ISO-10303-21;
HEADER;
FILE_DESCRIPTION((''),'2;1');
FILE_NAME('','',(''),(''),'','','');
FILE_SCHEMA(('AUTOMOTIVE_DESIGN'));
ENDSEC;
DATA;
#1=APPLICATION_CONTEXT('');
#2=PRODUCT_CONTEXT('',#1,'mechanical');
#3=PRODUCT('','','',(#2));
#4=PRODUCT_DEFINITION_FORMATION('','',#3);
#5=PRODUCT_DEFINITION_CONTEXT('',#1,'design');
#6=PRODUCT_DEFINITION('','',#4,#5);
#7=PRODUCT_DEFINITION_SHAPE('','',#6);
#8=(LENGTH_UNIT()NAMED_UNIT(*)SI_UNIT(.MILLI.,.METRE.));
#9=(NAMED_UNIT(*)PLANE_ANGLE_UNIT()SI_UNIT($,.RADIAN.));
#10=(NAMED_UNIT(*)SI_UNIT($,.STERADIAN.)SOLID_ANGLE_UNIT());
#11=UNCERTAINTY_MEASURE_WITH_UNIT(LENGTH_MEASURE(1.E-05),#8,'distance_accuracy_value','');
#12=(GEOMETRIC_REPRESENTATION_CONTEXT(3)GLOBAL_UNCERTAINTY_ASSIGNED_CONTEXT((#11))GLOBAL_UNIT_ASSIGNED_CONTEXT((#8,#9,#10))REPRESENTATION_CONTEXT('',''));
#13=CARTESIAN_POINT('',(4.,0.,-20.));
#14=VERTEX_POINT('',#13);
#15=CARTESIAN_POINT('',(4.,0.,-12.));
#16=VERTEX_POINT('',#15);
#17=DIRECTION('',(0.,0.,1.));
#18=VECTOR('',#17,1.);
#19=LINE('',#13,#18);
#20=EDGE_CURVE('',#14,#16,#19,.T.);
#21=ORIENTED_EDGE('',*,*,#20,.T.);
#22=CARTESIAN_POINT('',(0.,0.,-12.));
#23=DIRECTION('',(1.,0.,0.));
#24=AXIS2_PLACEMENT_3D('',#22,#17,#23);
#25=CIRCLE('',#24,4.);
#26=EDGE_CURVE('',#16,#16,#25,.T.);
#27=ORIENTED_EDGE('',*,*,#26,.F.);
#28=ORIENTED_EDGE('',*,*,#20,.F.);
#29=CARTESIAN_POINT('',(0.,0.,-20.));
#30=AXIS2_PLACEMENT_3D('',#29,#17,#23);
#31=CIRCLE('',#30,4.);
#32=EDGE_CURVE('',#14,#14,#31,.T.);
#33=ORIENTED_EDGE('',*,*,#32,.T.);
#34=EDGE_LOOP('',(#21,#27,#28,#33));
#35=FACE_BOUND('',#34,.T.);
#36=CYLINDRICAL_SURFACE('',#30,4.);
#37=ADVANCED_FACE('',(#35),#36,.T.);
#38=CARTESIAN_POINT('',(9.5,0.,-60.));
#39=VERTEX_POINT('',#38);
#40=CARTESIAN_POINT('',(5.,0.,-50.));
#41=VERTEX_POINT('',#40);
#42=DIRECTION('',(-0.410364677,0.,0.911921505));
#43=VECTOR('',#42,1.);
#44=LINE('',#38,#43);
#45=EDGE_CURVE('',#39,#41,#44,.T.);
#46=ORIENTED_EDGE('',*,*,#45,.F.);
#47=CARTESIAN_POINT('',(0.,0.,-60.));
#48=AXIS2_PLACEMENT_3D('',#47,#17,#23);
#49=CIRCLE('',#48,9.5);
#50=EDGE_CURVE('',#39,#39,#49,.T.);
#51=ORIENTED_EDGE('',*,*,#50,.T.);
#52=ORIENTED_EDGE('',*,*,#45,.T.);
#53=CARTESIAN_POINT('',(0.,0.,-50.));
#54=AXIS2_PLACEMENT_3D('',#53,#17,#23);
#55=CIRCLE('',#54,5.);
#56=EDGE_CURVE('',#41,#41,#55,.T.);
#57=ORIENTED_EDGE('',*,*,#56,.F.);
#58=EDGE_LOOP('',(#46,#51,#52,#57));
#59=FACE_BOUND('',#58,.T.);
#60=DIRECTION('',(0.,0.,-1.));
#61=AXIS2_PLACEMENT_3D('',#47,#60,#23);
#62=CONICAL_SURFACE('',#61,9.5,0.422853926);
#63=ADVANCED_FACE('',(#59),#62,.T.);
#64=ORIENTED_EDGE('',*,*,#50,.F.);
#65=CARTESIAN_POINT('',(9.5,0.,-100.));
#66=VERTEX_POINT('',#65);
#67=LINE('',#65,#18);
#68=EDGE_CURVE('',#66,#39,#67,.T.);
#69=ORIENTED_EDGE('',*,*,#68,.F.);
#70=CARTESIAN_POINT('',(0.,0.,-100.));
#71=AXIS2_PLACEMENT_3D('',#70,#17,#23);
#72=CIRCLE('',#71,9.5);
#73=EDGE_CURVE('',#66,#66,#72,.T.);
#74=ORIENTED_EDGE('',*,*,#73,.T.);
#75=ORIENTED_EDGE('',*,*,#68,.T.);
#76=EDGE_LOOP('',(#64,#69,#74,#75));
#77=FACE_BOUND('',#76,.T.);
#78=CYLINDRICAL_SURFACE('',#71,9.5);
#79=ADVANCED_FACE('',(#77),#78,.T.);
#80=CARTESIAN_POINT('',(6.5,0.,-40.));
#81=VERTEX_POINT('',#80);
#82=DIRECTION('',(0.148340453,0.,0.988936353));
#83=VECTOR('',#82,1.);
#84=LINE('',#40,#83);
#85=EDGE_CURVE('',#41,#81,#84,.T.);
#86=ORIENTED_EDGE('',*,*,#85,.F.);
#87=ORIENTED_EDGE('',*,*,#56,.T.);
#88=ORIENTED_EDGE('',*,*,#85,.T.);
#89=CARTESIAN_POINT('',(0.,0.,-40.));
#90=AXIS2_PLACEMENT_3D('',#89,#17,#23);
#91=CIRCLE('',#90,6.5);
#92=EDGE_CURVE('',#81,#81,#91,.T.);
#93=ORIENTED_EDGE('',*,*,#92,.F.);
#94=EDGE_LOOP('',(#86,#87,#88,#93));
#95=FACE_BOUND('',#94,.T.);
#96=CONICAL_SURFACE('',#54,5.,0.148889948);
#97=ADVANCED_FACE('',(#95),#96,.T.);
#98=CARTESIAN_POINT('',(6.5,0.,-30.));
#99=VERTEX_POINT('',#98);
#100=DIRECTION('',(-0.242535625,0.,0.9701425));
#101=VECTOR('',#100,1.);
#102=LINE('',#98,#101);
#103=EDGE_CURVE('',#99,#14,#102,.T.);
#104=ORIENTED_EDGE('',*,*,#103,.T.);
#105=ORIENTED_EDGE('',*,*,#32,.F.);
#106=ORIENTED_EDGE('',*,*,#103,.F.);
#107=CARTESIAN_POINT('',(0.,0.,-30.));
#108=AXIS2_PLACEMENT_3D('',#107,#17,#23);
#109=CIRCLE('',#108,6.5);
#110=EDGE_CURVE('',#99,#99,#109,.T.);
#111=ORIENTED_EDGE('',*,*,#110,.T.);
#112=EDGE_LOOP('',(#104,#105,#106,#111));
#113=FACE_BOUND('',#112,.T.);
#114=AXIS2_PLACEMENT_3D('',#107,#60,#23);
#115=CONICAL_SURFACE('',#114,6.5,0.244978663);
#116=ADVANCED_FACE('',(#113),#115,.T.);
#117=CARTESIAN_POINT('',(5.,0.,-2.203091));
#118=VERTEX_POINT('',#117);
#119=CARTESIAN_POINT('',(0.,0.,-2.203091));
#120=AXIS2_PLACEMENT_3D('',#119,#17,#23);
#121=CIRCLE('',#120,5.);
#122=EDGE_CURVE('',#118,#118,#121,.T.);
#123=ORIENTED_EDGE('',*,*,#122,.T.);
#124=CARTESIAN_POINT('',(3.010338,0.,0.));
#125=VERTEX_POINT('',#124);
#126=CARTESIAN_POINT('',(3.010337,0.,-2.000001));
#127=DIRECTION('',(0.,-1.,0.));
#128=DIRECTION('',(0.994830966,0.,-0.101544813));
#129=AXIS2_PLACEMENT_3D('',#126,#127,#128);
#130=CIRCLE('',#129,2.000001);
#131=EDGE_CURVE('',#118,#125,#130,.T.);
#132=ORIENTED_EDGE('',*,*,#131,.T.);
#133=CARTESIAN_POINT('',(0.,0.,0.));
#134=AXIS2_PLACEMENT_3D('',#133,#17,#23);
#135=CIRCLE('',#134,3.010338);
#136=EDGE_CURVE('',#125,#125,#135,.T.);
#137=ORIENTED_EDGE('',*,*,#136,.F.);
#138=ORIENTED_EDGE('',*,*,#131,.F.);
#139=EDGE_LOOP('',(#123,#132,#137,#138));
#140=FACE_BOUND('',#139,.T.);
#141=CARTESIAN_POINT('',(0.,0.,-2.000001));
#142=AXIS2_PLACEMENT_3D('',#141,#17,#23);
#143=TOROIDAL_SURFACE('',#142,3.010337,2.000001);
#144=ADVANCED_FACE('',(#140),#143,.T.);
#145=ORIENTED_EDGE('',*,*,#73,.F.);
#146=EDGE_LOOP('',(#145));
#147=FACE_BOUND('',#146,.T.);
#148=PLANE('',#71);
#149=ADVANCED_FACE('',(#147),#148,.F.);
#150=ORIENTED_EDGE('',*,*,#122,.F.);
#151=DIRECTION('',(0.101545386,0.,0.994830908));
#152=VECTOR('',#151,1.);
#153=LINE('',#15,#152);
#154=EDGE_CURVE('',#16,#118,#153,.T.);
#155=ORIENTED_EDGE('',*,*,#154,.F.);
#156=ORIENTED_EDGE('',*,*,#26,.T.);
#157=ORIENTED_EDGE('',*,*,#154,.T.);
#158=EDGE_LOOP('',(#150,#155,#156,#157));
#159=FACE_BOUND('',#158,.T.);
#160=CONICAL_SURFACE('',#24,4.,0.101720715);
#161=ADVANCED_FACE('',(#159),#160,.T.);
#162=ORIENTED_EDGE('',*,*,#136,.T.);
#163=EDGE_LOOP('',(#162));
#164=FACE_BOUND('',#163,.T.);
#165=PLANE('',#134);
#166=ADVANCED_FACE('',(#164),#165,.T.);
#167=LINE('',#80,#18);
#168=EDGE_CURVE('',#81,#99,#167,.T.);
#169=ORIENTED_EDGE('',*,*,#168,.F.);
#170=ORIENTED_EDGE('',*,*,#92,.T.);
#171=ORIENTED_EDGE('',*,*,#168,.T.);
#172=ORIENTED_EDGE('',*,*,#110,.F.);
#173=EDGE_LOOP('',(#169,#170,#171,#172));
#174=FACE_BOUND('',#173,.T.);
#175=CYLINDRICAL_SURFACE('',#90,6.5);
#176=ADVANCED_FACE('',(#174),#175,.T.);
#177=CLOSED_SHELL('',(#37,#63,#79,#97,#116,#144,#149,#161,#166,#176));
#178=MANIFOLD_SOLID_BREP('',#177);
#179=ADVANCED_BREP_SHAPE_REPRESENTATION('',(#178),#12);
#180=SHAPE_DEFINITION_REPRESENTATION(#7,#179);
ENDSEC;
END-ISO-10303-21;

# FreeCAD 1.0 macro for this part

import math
import FreeCAD as App
import Part
import Sketcher

V = App.Vector

doc = App.newDocument("Part")
body = doc.addObject("PartDesign::Body", "Body")

# Sketch on XZ plane
sketch1 = body.newObject("Sketcher::SketchObject", "Sketch")
sketch1.AttachmentSupport = (doc.getObject("XZ_Plane"), [""])
sketch1.MapMode = "FlatFace"
sketch1.addGeometry([
    Part.LineSegment(V(4, -20, 0), V(4, -12, 0)),  # 0
    Part.LineSegment(V(4, -12, 0), V(5, -2.2, 0)),  # 1
    Part.ArcOfCircle(Part.Circle(V(3, -2, 0), V(0, 0, 1), 2), math.radians(-6), math.radians(90)),  # 2
    Part.LineSegment(V(3, 0, 0), V(0, 0, 0)),  # 3
    Part.LineSegment(V(0, 0, 0), V(0, -100, 0)),  # 4
    Part.LineSegment(V(0, -100, 0), V(9.5, -100, 0)),  # 5
    Part.LineSegment(V(9.5, -100, 0), V(9.5, -60, 0)),  # 6
    Part.LineSegment(V(9.5, -60, 0), V(5, -50, 0)),  # 7
    Part.LineSegment(V(5, -50, 0), V(6.5, -40, 0)),  # 8
    Part.LineSegment(V(6.5, -40, 0), V(6.5, -30, 0)),  # 9
    Part.LineSegment(V(6.5, -30, 0), V(4, -20, 0)),  # 10
], False)
sketch1.addConstraint([
    Sketcher.Constraint("Coincident", 0, 2, 1, 1),
    Sketcher.Constraint("Tangent", 1, 2, 2, 1),
    Sketcher.Constraint("Tangent", 2, 2, 3, 1),
    Sketcher.Constraint("Coincident", 3, 2, 4, 1),
    Sketcher.Constraint("Coincident", 4, 2, 5, 1),
    Sketcher.Constraint("Coincident", 5, 2, 6, 1),
    Sketcher.Constraint("Coincident", 6, 2, 7, 1),
    Sketcher.Constraint("Coincident", 7, 2, 8, 1),
    Sketcher.Constraint("Coincident", 8, 2, 9, 1),
    Sketcher.Constraint("Coincident", 9, 2, 10, 1),
    Sketcher.Constraint("Coincident", 10, 2, 0, 1),
    Sketcher.Constraint("Vertical", 0),
    Sketcher.Constraint("Horizontal", 3),
    Sketcher.Constraint("Vertical", 4),
    Sketcher.Constraint("Horizontal", 5),
    Sketcher.Constraint("Vertical", 6),
    Sketcher.Constraint("Vertical", 9),
    Sketcher.Constraint("Coincident", 3, 2, -1, 1),
    Sketcher.Constraint("Vertical", 1, 2, 7, 2),
    Sketcher.Constraint("Radius", 2, 2.000001),
    Sketcher.Constraint("DistanceY", 0, 1, 0, 2, 8.0),
    Sketcher.Constraint("DistanceY", 4, 2, 4, 1, 100.0),
    Sketcher.Constraint("DistanceY", 6, 1, 6, 2, 40.0),
    Sketcher.Constraint("DistanceY", 9, 1, 9, 2, 10.0),
    Sketcher.Constraint("DistanceX", 5, 1, 5, 2, 9.5),
    Sketcher.Constraint("DistanceX", -1, 1, 0, 2, 4.0),
    Sketcher.Constraint("DistanceY", 0, 2, -1, 1, 12.0),
    Sketcher.Constraint("DistanceX", -1, 1, 1, 2, 5.0),
    Sketcher.Constraint("DistanceY", 7, 2, -1, 1, 50.0),
    Sketcher.Constraint("DistanceY", 8, 2, -1, 1, 40.0),
    Sketcher.Constraint("DistanceX", 8, 2, 6, 2, 3.0),
])
revolution = body.newObject("PartDesign::Revolution", "Revolution")
revolution.Profile = sketch1
revolution.ReferenceAxis = (sketch1, ["V_Axis"])
revolution.Angle = 360

doc.recompute()
